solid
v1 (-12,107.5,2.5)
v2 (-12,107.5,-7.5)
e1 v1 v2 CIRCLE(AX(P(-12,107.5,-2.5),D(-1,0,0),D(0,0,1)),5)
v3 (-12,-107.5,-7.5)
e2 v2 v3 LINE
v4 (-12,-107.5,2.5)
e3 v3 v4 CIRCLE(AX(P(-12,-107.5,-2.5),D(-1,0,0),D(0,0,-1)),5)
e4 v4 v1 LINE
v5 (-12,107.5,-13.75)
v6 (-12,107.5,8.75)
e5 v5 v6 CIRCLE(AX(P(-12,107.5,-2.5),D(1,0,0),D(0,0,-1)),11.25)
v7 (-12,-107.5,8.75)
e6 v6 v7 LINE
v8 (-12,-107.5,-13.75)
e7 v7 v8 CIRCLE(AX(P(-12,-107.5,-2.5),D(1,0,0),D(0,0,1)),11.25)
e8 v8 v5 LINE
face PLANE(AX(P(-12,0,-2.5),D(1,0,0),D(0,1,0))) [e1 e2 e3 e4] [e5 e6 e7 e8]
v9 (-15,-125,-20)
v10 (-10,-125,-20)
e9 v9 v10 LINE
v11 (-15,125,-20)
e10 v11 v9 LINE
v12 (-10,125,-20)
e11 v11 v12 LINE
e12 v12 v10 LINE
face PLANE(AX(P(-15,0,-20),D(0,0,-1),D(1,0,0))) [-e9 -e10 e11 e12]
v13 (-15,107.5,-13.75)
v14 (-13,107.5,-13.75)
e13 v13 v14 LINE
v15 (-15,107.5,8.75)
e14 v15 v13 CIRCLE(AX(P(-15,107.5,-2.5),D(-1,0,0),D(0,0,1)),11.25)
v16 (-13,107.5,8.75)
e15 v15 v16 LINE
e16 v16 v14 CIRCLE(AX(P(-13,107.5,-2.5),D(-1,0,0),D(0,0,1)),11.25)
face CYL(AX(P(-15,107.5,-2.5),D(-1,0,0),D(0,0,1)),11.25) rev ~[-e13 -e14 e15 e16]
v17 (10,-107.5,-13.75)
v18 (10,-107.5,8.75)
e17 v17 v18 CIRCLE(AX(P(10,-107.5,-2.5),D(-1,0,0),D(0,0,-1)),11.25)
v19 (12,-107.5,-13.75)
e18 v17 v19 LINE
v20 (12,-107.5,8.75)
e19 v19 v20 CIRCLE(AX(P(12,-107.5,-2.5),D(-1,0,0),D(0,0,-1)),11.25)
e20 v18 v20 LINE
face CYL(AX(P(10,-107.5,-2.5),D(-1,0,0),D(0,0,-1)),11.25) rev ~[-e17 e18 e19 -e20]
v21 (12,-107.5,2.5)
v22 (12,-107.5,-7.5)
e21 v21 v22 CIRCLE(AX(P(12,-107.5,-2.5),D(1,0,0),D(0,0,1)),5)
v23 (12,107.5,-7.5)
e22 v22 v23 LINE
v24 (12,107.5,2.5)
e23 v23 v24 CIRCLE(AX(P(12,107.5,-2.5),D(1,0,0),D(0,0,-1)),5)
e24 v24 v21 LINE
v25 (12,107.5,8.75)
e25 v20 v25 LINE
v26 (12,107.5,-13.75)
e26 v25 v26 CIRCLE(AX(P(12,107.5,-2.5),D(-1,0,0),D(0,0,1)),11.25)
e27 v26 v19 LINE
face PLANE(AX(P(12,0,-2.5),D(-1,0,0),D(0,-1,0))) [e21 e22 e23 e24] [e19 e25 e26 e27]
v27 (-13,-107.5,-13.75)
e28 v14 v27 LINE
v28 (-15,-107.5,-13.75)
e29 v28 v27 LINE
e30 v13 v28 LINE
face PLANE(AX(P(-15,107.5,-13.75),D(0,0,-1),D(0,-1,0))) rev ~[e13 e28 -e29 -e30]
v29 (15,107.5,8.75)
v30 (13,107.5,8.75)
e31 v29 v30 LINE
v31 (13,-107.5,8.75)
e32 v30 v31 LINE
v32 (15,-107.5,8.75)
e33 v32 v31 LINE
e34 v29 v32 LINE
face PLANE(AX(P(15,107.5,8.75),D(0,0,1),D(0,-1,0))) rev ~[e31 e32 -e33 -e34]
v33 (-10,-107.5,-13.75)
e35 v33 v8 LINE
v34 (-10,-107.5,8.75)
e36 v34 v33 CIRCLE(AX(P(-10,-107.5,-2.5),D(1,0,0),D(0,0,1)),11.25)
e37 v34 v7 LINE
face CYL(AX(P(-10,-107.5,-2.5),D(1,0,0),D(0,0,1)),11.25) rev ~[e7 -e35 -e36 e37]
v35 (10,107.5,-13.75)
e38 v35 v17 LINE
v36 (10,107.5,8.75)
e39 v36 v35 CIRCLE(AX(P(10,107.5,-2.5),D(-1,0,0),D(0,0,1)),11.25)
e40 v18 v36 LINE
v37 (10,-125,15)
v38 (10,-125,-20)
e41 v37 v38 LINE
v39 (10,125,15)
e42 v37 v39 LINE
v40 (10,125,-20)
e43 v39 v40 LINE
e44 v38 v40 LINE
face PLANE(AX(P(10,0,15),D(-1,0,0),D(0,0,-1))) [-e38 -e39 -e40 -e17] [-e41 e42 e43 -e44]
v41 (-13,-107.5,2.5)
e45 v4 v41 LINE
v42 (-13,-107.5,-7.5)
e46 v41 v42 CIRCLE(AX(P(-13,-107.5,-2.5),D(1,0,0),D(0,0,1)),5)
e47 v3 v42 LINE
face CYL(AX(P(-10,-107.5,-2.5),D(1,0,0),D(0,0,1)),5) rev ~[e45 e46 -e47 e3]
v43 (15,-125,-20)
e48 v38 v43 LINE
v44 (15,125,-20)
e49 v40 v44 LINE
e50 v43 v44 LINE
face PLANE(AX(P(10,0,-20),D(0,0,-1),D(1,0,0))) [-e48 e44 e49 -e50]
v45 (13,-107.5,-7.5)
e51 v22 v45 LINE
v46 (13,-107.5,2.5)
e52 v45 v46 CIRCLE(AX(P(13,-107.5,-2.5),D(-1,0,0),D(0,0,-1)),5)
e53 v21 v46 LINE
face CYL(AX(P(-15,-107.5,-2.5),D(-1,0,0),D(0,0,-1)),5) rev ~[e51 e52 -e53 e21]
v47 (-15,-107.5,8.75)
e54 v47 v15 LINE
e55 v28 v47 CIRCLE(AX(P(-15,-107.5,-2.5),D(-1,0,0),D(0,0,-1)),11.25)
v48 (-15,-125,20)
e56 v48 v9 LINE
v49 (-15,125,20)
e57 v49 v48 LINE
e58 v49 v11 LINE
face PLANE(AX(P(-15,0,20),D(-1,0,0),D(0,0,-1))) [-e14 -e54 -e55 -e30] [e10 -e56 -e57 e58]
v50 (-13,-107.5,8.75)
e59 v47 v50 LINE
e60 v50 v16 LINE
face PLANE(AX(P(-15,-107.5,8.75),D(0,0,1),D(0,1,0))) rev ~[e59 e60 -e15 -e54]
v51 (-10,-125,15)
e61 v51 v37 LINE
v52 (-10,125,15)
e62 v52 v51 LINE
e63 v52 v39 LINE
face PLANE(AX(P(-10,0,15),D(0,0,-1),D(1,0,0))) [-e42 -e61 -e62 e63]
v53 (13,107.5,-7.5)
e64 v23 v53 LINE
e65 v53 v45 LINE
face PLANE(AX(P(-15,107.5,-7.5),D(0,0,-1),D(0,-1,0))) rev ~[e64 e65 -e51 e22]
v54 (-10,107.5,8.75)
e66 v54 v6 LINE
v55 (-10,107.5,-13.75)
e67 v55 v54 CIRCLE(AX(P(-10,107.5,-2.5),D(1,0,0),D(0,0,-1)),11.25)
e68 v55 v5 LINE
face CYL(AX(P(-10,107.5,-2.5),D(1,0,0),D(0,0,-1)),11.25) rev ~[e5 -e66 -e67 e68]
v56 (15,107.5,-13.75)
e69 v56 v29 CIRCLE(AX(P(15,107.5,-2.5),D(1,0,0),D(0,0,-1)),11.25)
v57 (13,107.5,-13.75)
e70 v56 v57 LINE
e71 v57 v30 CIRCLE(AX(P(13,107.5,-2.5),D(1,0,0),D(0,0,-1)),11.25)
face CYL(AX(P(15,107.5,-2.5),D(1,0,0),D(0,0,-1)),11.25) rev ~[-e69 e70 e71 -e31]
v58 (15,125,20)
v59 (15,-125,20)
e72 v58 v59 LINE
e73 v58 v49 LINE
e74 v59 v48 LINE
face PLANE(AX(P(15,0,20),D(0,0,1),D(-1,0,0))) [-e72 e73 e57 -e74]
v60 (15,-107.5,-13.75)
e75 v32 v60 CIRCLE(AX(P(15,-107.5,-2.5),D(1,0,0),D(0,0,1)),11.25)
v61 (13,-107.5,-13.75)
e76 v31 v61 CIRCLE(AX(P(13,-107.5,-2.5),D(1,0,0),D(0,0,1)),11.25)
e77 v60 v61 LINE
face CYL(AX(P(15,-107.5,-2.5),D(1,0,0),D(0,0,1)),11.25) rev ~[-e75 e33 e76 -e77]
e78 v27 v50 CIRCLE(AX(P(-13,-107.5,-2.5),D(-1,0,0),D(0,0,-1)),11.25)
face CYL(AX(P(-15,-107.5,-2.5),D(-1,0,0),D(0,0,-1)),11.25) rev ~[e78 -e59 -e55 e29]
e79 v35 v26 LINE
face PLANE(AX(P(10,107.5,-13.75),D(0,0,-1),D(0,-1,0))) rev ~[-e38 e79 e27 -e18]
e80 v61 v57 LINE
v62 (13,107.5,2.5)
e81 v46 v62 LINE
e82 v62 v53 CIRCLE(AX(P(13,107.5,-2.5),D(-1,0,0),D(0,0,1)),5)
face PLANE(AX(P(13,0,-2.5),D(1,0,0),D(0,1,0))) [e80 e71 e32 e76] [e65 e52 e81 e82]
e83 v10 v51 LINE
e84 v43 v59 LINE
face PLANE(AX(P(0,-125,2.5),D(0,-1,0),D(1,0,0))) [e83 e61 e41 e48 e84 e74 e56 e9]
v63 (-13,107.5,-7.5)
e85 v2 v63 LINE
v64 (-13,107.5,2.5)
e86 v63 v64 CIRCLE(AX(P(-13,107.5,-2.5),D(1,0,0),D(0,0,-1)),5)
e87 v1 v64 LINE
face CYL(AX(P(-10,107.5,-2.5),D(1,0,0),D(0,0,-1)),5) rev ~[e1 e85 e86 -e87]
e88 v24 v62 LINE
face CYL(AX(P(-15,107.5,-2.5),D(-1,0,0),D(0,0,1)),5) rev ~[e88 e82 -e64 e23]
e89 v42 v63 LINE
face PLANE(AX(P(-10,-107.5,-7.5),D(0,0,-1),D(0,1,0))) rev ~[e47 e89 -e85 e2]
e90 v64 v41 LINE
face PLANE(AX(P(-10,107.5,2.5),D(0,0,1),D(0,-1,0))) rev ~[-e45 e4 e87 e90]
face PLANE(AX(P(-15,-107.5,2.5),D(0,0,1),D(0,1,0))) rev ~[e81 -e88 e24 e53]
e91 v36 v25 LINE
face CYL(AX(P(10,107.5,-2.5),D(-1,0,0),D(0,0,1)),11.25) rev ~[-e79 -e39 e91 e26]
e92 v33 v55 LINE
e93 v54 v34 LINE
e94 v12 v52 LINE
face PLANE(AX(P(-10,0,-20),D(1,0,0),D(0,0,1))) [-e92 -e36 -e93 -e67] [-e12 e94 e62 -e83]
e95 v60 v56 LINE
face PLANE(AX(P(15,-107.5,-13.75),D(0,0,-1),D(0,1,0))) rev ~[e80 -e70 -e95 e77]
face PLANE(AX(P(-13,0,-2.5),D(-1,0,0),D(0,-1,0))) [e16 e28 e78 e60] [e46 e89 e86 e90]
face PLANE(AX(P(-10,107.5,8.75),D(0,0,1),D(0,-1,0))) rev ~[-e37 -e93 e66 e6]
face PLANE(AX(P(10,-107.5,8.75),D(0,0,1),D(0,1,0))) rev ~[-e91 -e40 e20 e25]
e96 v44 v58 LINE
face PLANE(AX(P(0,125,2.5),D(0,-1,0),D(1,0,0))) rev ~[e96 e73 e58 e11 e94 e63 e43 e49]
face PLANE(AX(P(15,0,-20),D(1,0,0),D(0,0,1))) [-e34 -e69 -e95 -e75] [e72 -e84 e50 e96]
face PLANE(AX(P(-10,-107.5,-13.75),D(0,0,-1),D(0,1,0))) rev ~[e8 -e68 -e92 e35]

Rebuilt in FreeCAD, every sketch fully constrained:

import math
import FreeCAD as App
import Part
import Sketcher
from FreeCAD import Vector

doc = App.newDocument("Part")
params = doc.addObject("Spreadsheet::Sheet", "Params")
for row, (alias, value) in enumerate([
    ("sketch1_width", "30 mm"),
    ("sketch1_width2", "5 mm"),
    ("sketch1_height", "40 mm"),
    ("sketch1_height2", "35 mm"),
    ("pad1_length", "125 mm"),
    ("pad1_length2", "125 mm"),
    ("sketch2_radius", "5 mm"),
    ("sketch2_width", "215 mm"),
    ("sketch3_radius", "5 mm"),
    ("sketch3_width", "215 mm"),
    ("sketch4_radius", "5 mm"),
    ("sketch4_width", "215 mm"),
    ("sketch4_radius2", "11.25 mm"),
    ("pocket3_length", "2 mm"),
    ("sketch5_radius", "5 mm"),
    ("sketch5_width", "215 mm"),
    ("sketch5_radius2", "11.25 mm"),
    ("pocket4_length", "2 mm"),
    ("sketch6_radius", "5 mm"),
    ("sketch6_width", "215 mm"),
    ("sketch6_radius2", "11.25 mm"),
    ("pocket5_length", "2 mm"),
    ("sketch7_radius", "5 mm"),
    ("sketch7_width", "215 mm"),
    ("sketch7_radius2", "11.25 mm"),
    ("pocket6_length", "2 mm"),
], start=1):
    params.set(f"A{row}", alias)
    params.set(f"B{row}", "=" + value)
    params.setAlias(f"B{row}", alias)

body = doc.addObject("PartDesign::Body", "Body")

# Sketch on XZ plane
sketch1 = body.newObject("Sketcher::SketchObject", "Sketch")
sketch1.AttachmentSupport = (doc.getObject("XZ_Plane"), [""])
sketch1.MapMode = "FlatFace"
sketch1.addGeometry([
    Part.LineSegment(Vector(15, -20, 0), Vector(15, 20, 0)),  # 0
    Part.LineSegment(Vector(15, 20, 0), Vector(-15, 20, 0)),  # 1
    Part.LineSegment(Vector(-15, 20, 0), Vector(-15, -20, 0)),  # 2
    Part.LineSegment(Vector(-15, -20, 0), Vector(-10, -20, 0)),  # 3
    Part.LineSegment(Vector(-10, -20, 0), Vector(-10, 15, 0)),  # 4
    Part.LineSegment(Vector(-10, 15, 0), Vector(10, 15, 0)),  # 5
    Part.LineSegment(Vector(10, 15, 0), Vector(10, -20, 0)),  # 6
    Part.LineSegment(Vector(10, -20, 0), Vector(15, -20, 0)),  # 7
], False)
sketch1.addConstraint([
    Sketcher.Constraint("Coincident", 0, 2, 1, 1),
    Sketcher.Constraint("Coincident", 1, 2, 2, 1),
    Sketcher.Constraint("Coincident", 2, 2, 3, 1),
    Sketcher.Constraint("Coincident", 3, 2, 4, 1),
    Sketcher.Constraint("Coincident", 4, 2, 5, 1),
    Sketcher.Constraint("Coincident", 5, 2, 6, 1),
    Sketcher.Constraint("Coincident", 6, 2, 7, 1),
    Sketcher.Constraint("Coincident", 7, 2, 0, 1),
    Sketcher.Constraint("Vertical", 0),
    Sketcher.Constraint("Horizontal", 1),
    Sketcher.Constraint("Vertical", 2),
    Sketcher.Constraint("Horizontal", 3),
    Sketcher.Constraint("Vertical", 4),
    Sketcher.Constraint("Horizontal", 5),
    Sketcher.Constraint("Vertical", 6),
    Sketcher.Constraint("Horizontal", 7),
    Sketcher.Constraint("Symmetric", 0, 2, 2, 2, -1, 1),
    Sketcher.Constraint("Symmetric", 3, 2, 6, 2, -2),
    Sketcher.Constraint("DistanceX", 1, 2, 1, 1, 30.0),
    Sketcher.Constraint("DistanceX", 3, 1, 3, 2, 5.0),
    Sketcher.Constraint("DistanceY", 0, 1, 0, 2, 40.0),
    Sketcher.Constraint("DistanceY", 4, 1, 4, 2, 35.0),
])
sketch1.setExpression("Constraints[18]", "Params.sketch1_width")
sketch1.setExpression("Constraints[19]", "Params.sketch1_width2")
sketch1.setExpression("Constraints[20]", "Params.sketch1_height")
sketch1.setExpression("Constraints[21]", "Params.sketch1_height2")
pad1 = body.newObject("PartDesign::Pad", "Pad")
pad1.Profile = sketch1
pad1.Type = "TwoLengths"
pad1.setExpression("Length", "Params.pad1_length")
pad1.setExpression("Length2", "Params.pad1_length2")

# Sketch on YZ plane
sketch2 = body.newObject("Sketcher::SketchObject", "Sketch001")
sketch2.AttachmentSupport = (doc.getObject("YZ_Plane"), [""])
sketch2.MapMode = "FlatFace"
sketch2.AttachmentOffset = App.Placement(Vector(0, 0, -10), App.Rotation())
sketch2.addGeometry([
    Part.LineSegment(Vector(108, 2, 0), Vector(-108, 2, 0)),
    Part.ArcOfCircle(Part.Circle(Vector(-108, -2, 0), Vector(0, 0, 1), 5), math.radians(90), math.radians(270)),
    Part.LineSegment(Vector(-108, -8, 0), Vector(108, -8, 0)),
    Part.ArcOfCircle(Part.Circle(Vector(108, -2, 0), Vector(0, 0, 1), 5), math.radians(-90), math.radians(90)),
], False)
sketch2.addConstraint([
    Sketcher.Constraint("Tangent", 0, 2, 1, 1),
    Sketcher.Constraint("Tangent", 1, 2, 2, 1),
    Sketcher.Constraint("Tangent", 2, 2, 3, 1),
    Sketcher.Constraint("Tangent", 3, 2, 0, 1),
    Sketcher.Constraint("Horizontal", 0),
    Sketcher.Constraint("Horizontal", 2),
    Sketcher.Constraint("Radius", 1, 5.0),
    Sketcher.Constraint("DistanceX", 0, 2, 0, 1, 215.0),
    Sketcher.Constraint("DistanceX", 1, 3, -1, 1, 107.5),
    Sketcher.Constraint("DistanceY", 1, 3, -1, 1, 2.5),
])
sketch2.setExpression("Constraints[6]", "Params.sketch2_radius")
sketch2.setExpression("Constraints[7]", "Params.sketch2_width")
pocket1 = body.newObject("PartDesign::Pocket", "Pocket")
pocket1.Profile = sketch2
pocket1.Type = "ThroughAll"

# Sketch on YZ plane
sketch3 = body.newObject("Sketcher::SketchObject", "Sketch002")
sketch3.AttachmentSupport = (doc.getObject("YZ_Plane"), [""])
sketch3.MapMode = "FlatFace"
sketch3.AttachmentOffset = App.Placement(Vector(0, 0, -15), App.Rotation())
sketch3.addGeometry([
    Part.LineSegment(Vector(108, -8, 0), Vector(-108, -8, 0)),
    Part.ArcOfCircle(Part.Circle(Vector(-108, -2, 0), Vector(0, 0, 1), 5), math.radians(90), math.radians(270)),
    Part.LineSegment(Vector(-108, 2, 0), Vector(108, 2, 0)),
    Part.ArcOfCircle(Part.Circle(Vector(108, -2, 0), Vector(0, 0, 1), 5), math.radians(-90), math.radians(90)),
], False)
sketch3.addConstraint([
    Sketcher.Constraint("Tangent", 0, 2, 1, 2),
    Sketcher.Constraint("Tangent", 1, 1, 2, 1),
    Sketcher.Constraint("Tangent", 2, 2, 3, 2),
    Sketcher.Constraint("Tangent", 3, 1, 0, 1),
    Sketcher.Constraint("Horizontal", 0),
    Sketcher.Constraint("Horizontal", 2),
    Sketcher.Constraint("Radius", 1, 5.0),
    Sketcher.Constraint("DistanceX", 0, 2, 0, 1, 215.0),
    Sketcher.Constraint("DistanceX", 1, 3, -1, 1, 107.5),
    Sketcher.Constraint("DistanceY", 1, 3, -1, 1, 2.5),
])
sketch3.setExpression("Constraints[6]", "Params.sketch3_radius")
sketch3.setExpression("Constraints[7]", "Params.sketch3_width")
pocket2 = body.newObject("PartDesign::Pocket", "Pocket001")
pocket2.Profile = sketch3
pocket2.Type = "ThroughAll"
pocket2.Reversed = True

# Sketch on YZ plane
sketch4 = body.newObject("Sketcher::SketchObject", "Sketch003")
sketch4.AttachmentSupport = (doc.getObject("YZ_Plane"), [""])
sketch4.MapMode = "FlatFace"
sketch4.AttachmentOffset = App.Placement(Vector(0, 0, 10), App.Rotation())
sketch4.addGeometry([
    Part.LineSegment(Vector(-108, 9, 0), Vector(108, 9, 0)),  # 0
    Part.ArcOfCircle(Part.Circle(Vector(108, -2, 0), Vector(0, 0, 1), 11), math.radians(-90), math.radians(90)),  # 1
    Part.LineSegment(Vector(108, -14, 0), Vector(-108, -14, 0)),  # 2
    Part.ArcOfCircle(Part.Circle(Vector(-108, -2, 0), Vector(0, 0, 1), 11), math.radians(90), math.radians(270)),  # 3
    Part.LineSegment(Vector(-108, -8, 0), Vector(108, -8, 0)),  # 4
    Part.ArcOfCircle(Part.Circle(Vector(108, -2, 0), Vector(0, 0, 1), 5), math.radians(-90), math.radians(90)),  # 5
    Part.LineSegment(Vector(108, 2, 0), Vector(-108, 2, 0)),  # 6
    Part.ArcOfCircle(Part.Circle(Vector(-108, -2, 0), Vector(0, 0, 1), 5), math.radians(90), math.radians(270)),  # 7
], False)
sketch4.addConstraint([
    Sketcher.Constraint("Tangent", 0, 2, 1, 2),
    Sketcher.Constraint("Tangent", 1, 1, 2, 1),
    Sketcher.Constraint("Tangent", 2, 2, 3, 2),
    Sketcher.Constraint("Tangent", 3, 1, 0, 1),
    Sketcher.Constraint("Tangent", 4, 2, 5, 1),
    Sketcher.Constraint("Tangent", 5, 2, 6, 1),
    Sketcher.Constraint("Tangent", 6, 2, 7, 1),
    Sketcher.Constraint("Tangent", 7, 2, 4, 1),
    Sketcher.Constraint("Horizontal", 0),
    Sketcher.Constraint("Horizontal", 2),
    Sketcher.Constraint("Horizontal", 4),
    Sketcher.Constraint("Horizontal", 6),
    Sketcher.Constraint("Coincident", 5, 3, 1, 3),
    Sketcher.Constraint("Vertical", 7, 3, 2, 2),
    Sketcher.Constraint("Radius", 5, 5.0),
    Sketcher.Constraint("DistanceX", 0, 1, 0, 2, 215.0),
    Sketcher.Constraint("Radius", 1, 11.25),
    Sketcher.Constraint("DistanceX", -1, 1, 1, 3, 107.5),
    Sketcher.Constraint("DistanceY", 1, 3, -1, 1, 2.5),
])
sketch4.setExpression("Constraints[14]", "Params.sketch4_radius")
sketch4.setExpression("Constraints[15]", "Params.sketch4_width")
sketch4.setExpression("Constraints[16]", "Params.sketch4_radius2")
pocket3 = body.newObject("PartDesign::Pocket", "Pocket002")
pocket3.Profile = sketch4
pocket3.setExpression("Length", "Params.pocket3_length")
pocket3.Reversed = True

# Sketch on YZ plane
sketch5 = body.newObject("Sketcher::SketchObject", "Sketch004")
sketch5.AttachmentSupport = (doc.getObject("YZ_Plane"), [""])
sketch5.MapMode = "FlatFace"
sketch5.AttachmentOffset = App.Placement(Vector(0, 0, -10), App.Rotation())
sketch5.addGeometry([
    Part.LineSegment(Vector(108, 9, 0), Vector(-108, 9, 0)),  # 0
    Part.ArcOfCircle(Part.Circle(Vector(-108, -2, 0), Vector(0, 0, 1), 11), math.radians(90), math.radians(270)),  # 1
    Part.LineSegment(Vector(-108, -14, 0), Vector(108, -14, 0)),  # 2
    Part.ArcOfCircle(Part.Circle(Vector(108, -2, 0), Vector(0, 0, 1), 11), math.radians(-90), math.radians(90)),  # 3
    Part.LineSegment(Vector(108, -8, 0), Vector(-108, -8, 0)),  # 4
    Part.ArcOfCircle(Part.Circle(Vector(-108, -2, 0), Vector(0, 0, 1), 5), math.radians(90), math.radians(270)),  # 5
    Part.LineSegment(Vector(-108, 2, 0), Vector(108, 2, 0)),  # 6
    Part.ArcOfCircle(Part.Circle(Vector(108, -2, 0), Vector(0, 0, 1), 5), math.radians(-90), math.radians(90)),  # 7
], False)
sketch5.addConstraint([
    Sketcher.Constraint("Tangent", 0, 2, 1, 1),
    Sketcher.Constraint("Tangent", 1, 2, 2, 1),
    Sketcher.Constraint("Tangent", 2, 2, 3, 1),
    Sketcher.Constraint("Tangent", 3, 2, 0, 1),
    Sketcher.Constraint("Tangent", 4, 2, 5, 2),
    Sketcher.Constraint("Tangent", 5, 1, 6, 1),
    Sketcher.Constraint("Tangent", 6, 2, 7, 2),
    Sketcher.Constraint("Tangent", 7, 1, 4, 1),
    Sketcher.Constraint("Horizontal", 0),
    Sketcher.Constraint("Horizontal", 2),
    Sketcher.Constraint("Horizontal", 4),
    Sketcher.Constraint("Horizontal", 6),
    Sketcher.Constraint("Coincident", 5, 3, 1, 3),
    Sketcher.Constraint("Vertical", 7, 3, 2, 2),
    Sketcher.Constraint("Radius", 5, 5.0),
    Sketcher.Constraint("DistanceX", 0, 2, 0, 1, 215.0),
    Sketcher.Constraint("Radius", 1, 11.25),
    Sketcher.Constraint("DistanceX", 1, 3, -1, 1, 107.5),
    Sketcher.Constraint("DistanceY", 1, 3, -1, 1, 2.5),
])
sketch5.setExpression("Constraints[14]", "Params.sketch5_radius")
sketch5.setExpression("Constraints[15]", "Params.sketch5_width")
sketch5.setExpression("Constraints[16]", "Params.sketch5_radius2")
pocket4 = body.newObject("PartDesign::Pocket", "Pocket003")
pocket4.Profile = sketch5
pocket4.setExpression("Length", "Params.pocket4_length")

# Sketch on YZ plane
sketch6 = body.newObject("Sketcher::SketchObject", "Sketch005")
sketch6.AttachmentSupport = (doc.getObject("YZ_Plane"), [""])
sketch6.MapMode = "FlatFace"
sketch6.AttachmentOffset = App.Placement(Vector(0, 0, 15), App.Rotation())
sketch6.addGeometry([
    Part.ArcOfCircle(Part.Circle(Vector(-108, -2, 0), Vector(0, 0, 1), 11), math.radians(90), math.radians(270)),  # 0
    Part.LineSegment(Vector(-108, -14, 0), Vector(108, -14, 0)),  # 1
    Part.ArcOfCircle(Part.Circle(Vector(108, -2, 0), Vector(0, 0, 1), 11), math.radians(-90), math.radians(90)),  # 2
    Part.LineSegment(Vector(108, 9, 0), Vector(-108, 9, 0)),  # 3
    Part.LineSegment(Vector(108, -8, 0), Vector(-108, -8, 0)),  # 4
    Part.ArcOfCircle(Part.Circle(Vector(-108, -2, 0), Vector(0, 0, 1), 5), math.radians(90), math.radians(270)),  # 5
    Part.LineSegment(Vector(-108, 2, 0), Vector(108, 2, 0)),  # 6
    Part.ArcOfCircle(Part.Circle(Vector(108, -2, 0), Vector(0, 0, 1), 5), math.radians(-90), math.radians(90)),  # 7
], False)
sketch6.addConstraint([
    Sketcher.Constraint("Tangent", 0, 2, 1, 1),
    Sketcher.Constraint("Tangent", 1, 2, 2, 1),
    Sketcher.Constraint("Tangent", 2, 2, 3, 1),
    Sketcher.Constraint("Tangent", 3, 2, 0, 1),
    Sketcher.Constraint("Tangent", 4, 2, 5, 2),
    Sketcher.Constraint("Tangent", 5, 1, 6, 1),
    Sketcher.Constraint("Tangent", 6, 2, 7, 2),
    Sketcher.Constraint("Tangent", 7, 1, 4, 1),
    Sketcher.Constraint("Horizontal", 1),
    Sketcher.Constraint("Horizontal", 3),
    Sketcher.Constraint("Horizontal", 4),
    Sketcher.Constraint("Horizontal", 6),
    Sketcher.Constraint("Coincident", 5, 3, 0, 3),
    Sketcher.Constraint("Vertical", 7, 3, 1, 2),
    Sketcher.Constraint("Radius", 5, 5.0),
    Sketcher.Constraint("DistanceX", 1, 1, 1, 2, 215.0),
    Sketcher.Constraint("Radius", 0, 11.25),
    Sketcher.Constraint("DistanceX", 0, 3, -1, 1, 107.5),
    Sketcher.Constraint("DistanceY", 0, 3, -1, 1, 2.5),
])
sketch6.setExpression("Constraints[14]", "Params.sketch6_radius")
sketch6.setExpression("Constraints[15]", "Params.sketch6_width")
sketch6.setExpression("Constraints[16]", "Params.sketch6_radius2")
pocket5 = body.newObject("PartDesign::Pocket", "Pocket004")
pocket5.Profile = sketch6
pocket5.setExpression("Length", "Params.pocket5_length")

# Sketch on YZ plane
sketch7 = body.newObject("Sketcher::SketchObject", "Sketch006")
sketch7.AttachmentSupport = (doc.getObject("YZ_Plane"), [""])
sketch7.MapMode = "FlatFace"
sketch7.AttachmentOffset = App.Placement(Vector(0, 0, -15), App.Rotation())
sketch7.addGeometry([
    Part.LineSegment(Vector(108, -14, 0), Vector(-108, -14, 0)),  # 0
    Part.ArcOfCircle(Part.Circle(Vector(-108, -2, 0), Vector(0, 0, 1), 11), math.radians(90), math.radians(270)),  # 1
    Part.LineSegment(Vector(-108, 9, 0), Vector(108, 9, 0)),  # 2
    Part.ArcOfCircle(Part.Circle(Vector(108, -2, 0), Vector(0, 0, 1), 11), math.radians(-90), math.radians(90)),  # 3
    Part.LineSegment(Vector(108, 2, 0), Vector(-108, 2, 0)),  # 4
    Part.ArcOfCircle(Part.Circle(Vector(-108, -2, 0), Vector(0, 0, 1), 5), math.radians(90), math.radians(270)),  # 5
    Part.LineSegment(Vector(-108, -8, 0), Vector(108, -8, 0)),  # 6
    Part.ArcOfCircle(Part.Circle(Vector(108, -2, 0), Vector(0, 0, 1), 5), math.radians(-90), math.radians(90)),  # 7
], False)
sketch7.addConstraint([
    Sketcher.Constraint("Tangent", 0, 2, 1, 2),
    Sketcher.Constraint("Tangent", 1, 1, 2, 1),
    Sketcher.Constraint("Tangent", 2, 2, 3, 2),
    Sketcher.Constraint("Tangent", 3, 1, 0, 1),
    Sketcher.Constraint("Tangent", 4, 2, 5, 1),
    Sketcher.Constraint("Tangent", 5, 2, 6, 1),
    Sketcher.Constraint("Tangent", 6, 2, 7, 1),
    Sketcher.Constraint("Tangent", 7, 2, 4, 1),
    Sketcher.Constraint("Horizontal", 0),
    Sketcher.Constraint("Horizontal", 2),
    Sketcher.Constraint("Horizontal", 4),
    Sketcher.Constraint("Horizontal", 6),
    Sketcher.Constraint("Coincident", 5, 3, 1, 3),
    Sketcher.Constraint("Vertical", 7, 3, 2, 2),
    Sketcher.Constraint("Radius", 5, 5.0),
    Sketcher.Constraint("DistanceX", 0, 2, 0, 1, 215.0),
    Sketcher.Constraint("Radius", 1, 11.25),
    Sketcher.Constraint("DistanceX", 1, 3, -1, 1, 107.5),
    Sketcher.Constraint("DistanceY", 1, 3, -1, 1, 2.5),
])
sketch7.setExpression("Constraints[14]", "Params.sketch7_radius")
sketch7.setExpression("Constraints[15]", "Params.sketch7_width")
sketch7.setExpression("Constraints[16]", "Params.sketch7_radius2")
pocket6 = body.newObject("PartDesign::Pocket", "Pocket005")
pocket6.Profile = sketch7
pocket6.setExpression("Length", "Params.pocket6_length")
pocket6.Reversed = True

doc.recompute()
